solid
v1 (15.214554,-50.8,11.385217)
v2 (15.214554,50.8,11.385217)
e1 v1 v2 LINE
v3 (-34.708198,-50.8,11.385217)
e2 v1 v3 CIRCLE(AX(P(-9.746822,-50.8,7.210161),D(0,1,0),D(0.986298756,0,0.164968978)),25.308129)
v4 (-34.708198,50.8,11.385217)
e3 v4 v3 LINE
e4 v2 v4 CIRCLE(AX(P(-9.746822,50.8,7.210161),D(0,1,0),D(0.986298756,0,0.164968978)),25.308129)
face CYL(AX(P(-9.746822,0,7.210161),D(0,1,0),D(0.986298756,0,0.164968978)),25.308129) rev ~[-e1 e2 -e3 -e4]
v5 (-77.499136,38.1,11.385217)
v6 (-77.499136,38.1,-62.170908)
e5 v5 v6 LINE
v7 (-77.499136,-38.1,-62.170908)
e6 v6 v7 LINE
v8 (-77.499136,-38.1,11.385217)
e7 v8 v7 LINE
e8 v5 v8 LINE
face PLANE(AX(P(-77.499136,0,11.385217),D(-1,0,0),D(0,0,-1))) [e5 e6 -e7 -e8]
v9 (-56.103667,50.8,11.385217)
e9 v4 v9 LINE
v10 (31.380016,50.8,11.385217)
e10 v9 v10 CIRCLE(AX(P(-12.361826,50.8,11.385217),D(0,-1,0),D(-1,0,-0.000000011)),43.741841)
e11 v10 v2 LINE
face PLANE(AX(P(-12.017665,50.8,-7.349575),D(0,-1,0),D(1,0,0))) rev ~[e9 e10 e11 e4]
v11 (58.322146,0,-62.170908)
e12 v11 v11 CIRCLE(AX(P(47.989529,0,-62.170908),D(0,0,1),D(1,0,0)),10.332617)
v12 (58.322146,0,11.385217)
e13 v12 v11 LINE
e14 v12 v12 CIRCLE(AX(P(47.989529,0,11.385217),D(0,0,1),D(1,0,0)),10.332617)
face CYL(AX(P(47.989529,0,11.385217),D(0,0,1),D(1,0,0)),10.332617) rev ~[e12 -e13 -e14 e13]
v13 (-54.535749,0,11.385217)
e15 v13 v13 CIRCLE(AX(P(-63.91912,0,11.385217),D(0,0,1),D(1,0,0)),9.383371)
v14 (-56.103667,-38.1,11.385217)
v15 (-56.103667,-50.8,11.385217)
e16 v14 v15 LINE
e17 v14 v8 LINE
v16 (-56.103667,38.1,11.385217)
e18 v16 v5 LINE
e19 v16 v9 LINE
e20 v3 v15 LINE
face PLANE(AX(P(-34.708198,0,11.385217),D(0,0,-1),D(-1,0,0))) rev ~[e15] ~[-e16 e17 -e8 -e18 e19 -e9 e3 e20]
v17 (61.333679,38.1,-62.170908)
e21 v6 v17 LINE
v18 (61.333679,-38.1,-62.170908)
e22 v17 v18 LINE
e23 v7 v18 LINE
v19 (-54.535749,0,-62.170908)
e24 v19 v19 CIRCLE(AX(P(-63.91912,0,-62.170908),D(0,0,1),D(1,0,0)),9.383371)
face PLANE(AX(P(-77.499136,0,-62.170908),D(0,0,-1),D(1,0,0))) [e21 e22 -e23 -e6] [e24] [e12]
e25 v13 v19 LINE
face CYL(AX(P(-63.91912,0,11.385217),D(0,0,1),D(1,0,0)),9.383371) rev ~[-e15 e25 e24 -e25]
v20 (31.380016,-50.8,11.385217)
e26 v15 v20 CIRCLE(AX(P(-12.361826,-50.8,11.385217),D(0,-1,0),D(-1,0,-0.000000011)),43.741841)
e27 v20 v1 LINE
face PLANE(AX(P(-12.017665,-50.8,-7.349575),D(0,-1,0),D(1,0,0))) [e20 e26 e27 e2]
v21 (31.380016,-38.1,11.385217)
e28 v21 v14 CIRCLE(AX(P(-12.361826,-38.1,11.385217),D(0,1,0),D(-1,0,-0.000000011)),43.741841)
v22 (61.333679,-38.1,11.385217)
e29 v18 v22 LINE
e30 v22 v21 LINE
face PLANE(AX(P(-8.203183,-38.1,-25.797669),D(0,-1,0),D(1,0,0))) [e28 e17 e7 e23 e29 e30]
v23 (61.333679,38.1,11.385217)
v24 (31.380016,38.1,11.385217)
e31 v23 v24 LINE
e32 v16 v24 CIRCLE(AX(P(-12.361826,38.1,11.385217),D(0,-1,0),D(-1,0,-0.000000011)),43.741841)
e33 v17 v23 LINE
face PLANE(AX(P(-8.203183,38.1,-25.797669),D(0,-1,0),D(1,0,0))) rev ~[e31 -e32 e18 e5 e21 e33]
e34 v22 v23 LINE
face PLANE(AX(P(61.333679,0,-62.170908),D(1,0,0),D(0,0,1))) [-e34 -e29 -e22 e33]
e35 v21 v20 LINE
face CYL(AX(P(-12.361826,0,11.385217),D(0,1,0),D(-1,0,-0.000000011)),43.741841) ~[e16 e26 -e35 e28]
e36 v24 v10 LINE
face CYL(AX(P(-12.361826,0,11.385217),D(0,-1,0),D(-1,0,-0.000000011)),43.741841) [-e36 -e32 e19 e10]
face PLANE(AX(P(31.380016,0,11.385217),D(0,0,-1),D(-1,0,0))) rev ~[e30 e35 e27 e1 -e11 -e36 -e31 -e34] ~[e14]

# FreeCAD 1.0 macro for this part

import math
import FreeCAD as App
import Part
import Sketcher
Q = App.Units.Quantity

doc = App.newDocument("Part")
params = doc.addObject("Spreadsheet::Sheet", "Params")
for row, (alias, value) in enumerate([
    ("pad1_length", "1.5 in"),
    ("pad1_length2", "1.5 in"),
    ("pad2_length", "2 in"),
    ("pad2_length2", "2 in"),
], start=1):
    params.set(f"A{row}", alias)
    params.set(f"B{row}", "=" + value)
    params.setAlias(f"B{row}", alias)

body = doc.addObject("PartDesign::Body", "Body")

sketch1 = body.newObject("Sketcher::SketchObject", "Sketch")
sketch1.AttachmentSupport = (doc.getObject("XZ_Plane"), [""])
sketch1.MapMode = "FlatFace"
sketch1.addGeometry(Part.LineSegment(App.Vector(-35, 11, 0), App.Vector(-77, 11, 0)), False)
sketch1.addGeometry(Part.LineSegment(App.Vector(-77, 11, 0), App.Vector(-77, -62, 0)), False)
sketch1.addGeometry(Part.LineSegment(App.Vector(-77, -62, 0), App.Vector(61, -62, 0)), False)
sketch1.addGeometry(Part.LineSegment(App.Vector(61, -62, 0), App.Vector(61, 11, 0)), False)
sketch1.addGeometry(Part.LineSegment(App.Vector(61, 11, 0), App.Vector(15, 11, 0)), False)
sketch1.addGeometry(Part.ArcOfCircle(Part.Circle(App.Vector(-10, 7, 0), App.Vector(0, 0, 1), 25), math.radians(171), math.radians(369)), False)
sketch1.addConstraint(Sketcher.Constraint("Coincident", 0, 2, 1, 1))
sketch1.addConstraint(Sketcher.Constraint("Coincident", 1, 2, 2, 1))
sketch1.addConstraint(Sketcher.Constraint("Coincident", 2, 2, 3, 1))
sketch1.addConstraint(Sketcher.Constraint("Coincident", 3, 2, 4, 1))
sketch1.addConstraint(Sketcher.Constraint("Coincident", 4, 2, 5, 2))
sketch1.addConstraint(Sketcher.Constraint("Coincident", 5, 1, 0, 1))
sketch1.addConstraint(Sketcher.Constraint("Horizontal", 0))
sketch1.addConstraint(Sketcher.Constraint("Vertical", 1))
sketch1.addConstraint(Sketcher.Constraint("Horizontal", 2))
sketch1.addConstraint(Sketcher.Constraint("Vertical", 3))
sketch1.addConstraint(Sketcher.Constraint("Horizontal", 4))
sketch1.addConstraint(Sketcher.Constraint("Horizontal", 0, 2, 3, 2))
sketch1.addConstraint(Sketcher.Constraint("Radius", 5, Q("25.308129 mm")))
sketch1.addConstraint(Sketcher.Constraint("DistanceX", 5, 3, 2, 2, Q("71.080501 mm")))
sketch1.addConstraint(Sketcher.Constraint("DistanceX", 0, 2, 0, 1, Q("42.790938 mm")))
sketch1.addConstraint(Sketcher.Constraint("DistanceX", 2, 1, 2, 2, Q("138.832815 mm")))
sketch1.addConstraint(Sketcher.Constraint("DistanceY", 1, 2, 1, 1, Q("73.556125 mm")))
sketch1.addConstraint(Sketcher.Constraint("DistanceY", -1, 1, 5, 3, Q("7.210161 mm")))
sketch1.addConstraint(Sketcher.Constraint("DistanceX", -1, 1, 2, 2, Q("61.333679 mm")))
pad1 = body.newObject("PartDesign::Pad", "Pad")
pad1.Profile = sketch1
pad1.Type = "TwoLengths"
pad1.setExpression("Length", "Params.pad1_length")
pad1.setExpression("Length2", "Params.pad1_length2")

sketch2 = body.newObject("Sketcher::SketchObject", "Sketch001")
sketch2.AttachmentSupport = (doc.getObject("XZ_Plane"), [""])
sketch2.MapMode = "FlatFace"
sketch2.addGeometry(Part.ArcOfCircle(Part.Circle(App.Vector(-10, 7, 0), App.Vector(0, 0, 1), 25), math.radians(171), math.radians(369)), False)
sketch2.addGeometry(Part.LineSegment(App.Vector(-35, 11, 0), App.Vector(-56, 11, 0)), False)
sketch2.addGeometry(Part.ArcOfCircle(Part.Circle(App.Vector(-12, 11, 0), App.Vector(0, 0, 1), 44), math.radians(-180), math.radians(0)), False)
sketch2.addGeometry(Part.LineSegment(App.Vector(31, 11, 0), App.Vector(15, 11, 0)), False)
sketch2.addConstraint(Sketcher.Constraint("Coincident", 0, 1, 1, 1))
sketch2.addConstraint(Sketcher.Constraint("Coincident", 1, 2, 2, 1))
sketch2.addConstraint(Sketcher.Constraint("Coincident", 2, 2, 3, 1))
sketch2.addConstraint(Sketcher.Constraint("Coincident", 3, 2, 0, 2))
sketch2.addConstraint(Sketcher.Constraint("Horizontal", 1))
sketch2.addConstraint(Sketcher.Constraint("Horizontal", 3))
sketch2.addConstraint(Sketcher.Constraint("Horizontal", 2, 3, 0, 1))
sketch2.addConstraint(Sketcher.Constraint("Horizontal", 1, 2, 2, 2))
sketch2.addConstraint(Sketcher.Constraint("Radius", 0, Q("25.308129 mm")))
sketch2.addConstraint(Sketcher.Constraint("Radius", 2, Q("43.741841 mm")))
sketch2.addConstraint(Sketcher.Constraint("DistanceX", 1, 2, 1, 1, Q("21.395469 mm")))
sketch2.addConstraint(Sketcher.Constraint("DistanceX", 3, 2, 3, 1, Q("16.165462 mm")))
sketch2.addConstraint(Sketcher.Constraint("DistanceY", -1, 1, 0, 3, Q("7.210161 mm")))
sketch2.addConstraint(Sketcher.Constraint("DistanceX", 0, 3, -1, 1, Q("9.746822 mm")))
pad2 = body.newObject("PartDesign::Pad", "Pad001")
pad2.Profile = sketch2
pad2.Type = "TwoLengths"
pad2.setExpression("Length", "Params.pad2_length")
pad2.setExpression("Length2", "Params.pad2_length2")

sketch3 = body.newObject("Sketcher::SketchObject", "Sketch002")
sketch3.AttachmentSupport = (doc.getObject("XY_Plane"), [""])
sketch3.MapMode = "FlatFace"
sketch3.AttachmentOffset = App.Placement(App.Vector(0, 0, 11.385217), App.Rotation())
sketch3.addGeometry(Part.Circle(App.Vector(48, 0, 0), App.Vector(0, 0, 1), 10), False)
sketch3.addGeometry(Part.Circle(App.Vector(-64, 0, 0), App.Vector(0, 0, 1), 9), False)
sketch3.addConstraint(Sketcher.Constraint("PointOnObject", 0, 3, -1))
sketch3.addConstraint(Sketcher.Constraint("PointOnObject", 1, 3, -1))
sketch3.addConstraint(Sketcher.Constraint("Diameter", 0, Q("20.665234 mm")))
sketch3.addConstraint(Sketcher.Constraint("Diameter", 1, Q("18.766742 mm")))
sketch3.addConstraint(Sketcher.Constraint("DistanceX", -1, 1, 0, 3, Q("47.989529 mm")))
sketch3.addConstraint(Sketcher.Constraint("DistanceX", 1, 3, -1, 1, Q("63.91912 mm")))
pocket1 = body.newObject("PartDesign::Pocket", "Pocket")
pocket1.Profile = sketch3
pocket1.Type = "ThroughAll"

doc.recompute()
